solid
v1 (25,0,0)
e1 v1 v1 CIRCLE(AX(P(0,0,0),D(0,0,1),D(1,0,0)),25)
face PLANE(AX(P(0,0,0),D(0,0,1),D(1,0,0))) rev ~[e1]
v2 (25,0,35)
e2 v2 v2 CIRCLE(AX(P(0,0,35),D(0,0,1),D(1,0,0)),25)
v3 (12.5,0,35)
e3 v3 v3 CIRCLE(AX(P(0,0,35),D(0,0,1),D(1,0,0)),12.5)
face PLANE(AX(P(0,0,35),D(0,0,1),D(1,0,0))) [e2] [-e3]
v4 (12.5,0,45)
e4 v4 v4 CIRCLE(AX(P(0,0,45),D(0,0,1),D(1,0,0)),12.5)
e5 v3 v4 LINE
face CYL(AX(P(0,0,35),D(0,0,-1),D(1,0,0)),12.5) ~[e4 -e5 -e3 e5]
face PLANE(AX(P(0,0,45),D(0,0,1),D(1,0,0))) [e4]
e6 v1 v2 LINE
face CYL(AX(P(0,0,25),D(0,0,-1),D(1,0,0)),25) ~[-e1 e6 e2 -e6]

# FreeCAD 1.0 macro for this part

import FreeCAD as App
import Part
import Sketcher

V = App.Vector

doc = App.newDocument("Part")
body = doc.addObject("PartDesign::Body", "Body")

sketch1 = body.newObject("Sketcher::SketchObject", "Sketch")
sketch1.AttachmentSupport = (doc.getObject("XY_Plane"), [""])
sketch1.MapMode = "FlatFace"
sketch1.addGeometry(Part.Circle(V(0, 0, 0), V(0, 0, 1), 25), False)
sketch1.addConstraint(Sketcher.Constraint("Coincident", 0, 3, -1, 1))
sketch1.addConstraint(Sketcher.Constraint("Diameter", 0, 50.0))
pad1 = body.newObject("PartDesign::Pad", "Pad")
pad1.Profile = sketch1
pad1.Length = 25

sketch2 = body.newObject("Sketcher::SketchObject", "Sketch001")
sketch2.AttachmentSupport = (doc.getObject("XY_Plane"), [""])
sketch2.MapMode = "FlatFace"
sketch2.AttachmentOffset = App.Placement(V(0, 0, 25), App.Rotation())
sketch2.addGeometry(Part.Circle(V(0, 0, 0), V(0, 0, 1), 25), False)
sketch2.addConstraint(Sketcher.Constraint("Coincident", 0, 3, -1, 1))
sketch2.addConstraint(Sketcher.Constraint("Diameter", 0, 50.0))
pad2 = body.newObject("PartDesign::Pad", "Pad001")
pad2.Profile = sketch2
pad2.Length = 10

sketch3 = body.newObject("Sketcher::SketchObject", "Sketch002")
sketch3.AttachmentSupport = (doc.getObject("XY_Plane"), [""])
sketch3.MapMode = "FlatFace"
sketch3.AttachmentOffset = App.Placement(V(0, 0, 35), App.Rotation())
sketch3.addGeometry(Part.Circle(V(0, 0, 0), V(0, 0, 1), 12), False)
sketch3.addConstraint(Sketcher.Constraint("Coincident", 0, 3, -1, 1))
sketch3.addConstraint(Sketcher.Constraint("Diameter", 0, 25.0))
pad3 = body.newObject("PartDesign::Pad", "Pad002")
pad3.Profile = sketch3
pad3.Length = 10

doc.recompute()
